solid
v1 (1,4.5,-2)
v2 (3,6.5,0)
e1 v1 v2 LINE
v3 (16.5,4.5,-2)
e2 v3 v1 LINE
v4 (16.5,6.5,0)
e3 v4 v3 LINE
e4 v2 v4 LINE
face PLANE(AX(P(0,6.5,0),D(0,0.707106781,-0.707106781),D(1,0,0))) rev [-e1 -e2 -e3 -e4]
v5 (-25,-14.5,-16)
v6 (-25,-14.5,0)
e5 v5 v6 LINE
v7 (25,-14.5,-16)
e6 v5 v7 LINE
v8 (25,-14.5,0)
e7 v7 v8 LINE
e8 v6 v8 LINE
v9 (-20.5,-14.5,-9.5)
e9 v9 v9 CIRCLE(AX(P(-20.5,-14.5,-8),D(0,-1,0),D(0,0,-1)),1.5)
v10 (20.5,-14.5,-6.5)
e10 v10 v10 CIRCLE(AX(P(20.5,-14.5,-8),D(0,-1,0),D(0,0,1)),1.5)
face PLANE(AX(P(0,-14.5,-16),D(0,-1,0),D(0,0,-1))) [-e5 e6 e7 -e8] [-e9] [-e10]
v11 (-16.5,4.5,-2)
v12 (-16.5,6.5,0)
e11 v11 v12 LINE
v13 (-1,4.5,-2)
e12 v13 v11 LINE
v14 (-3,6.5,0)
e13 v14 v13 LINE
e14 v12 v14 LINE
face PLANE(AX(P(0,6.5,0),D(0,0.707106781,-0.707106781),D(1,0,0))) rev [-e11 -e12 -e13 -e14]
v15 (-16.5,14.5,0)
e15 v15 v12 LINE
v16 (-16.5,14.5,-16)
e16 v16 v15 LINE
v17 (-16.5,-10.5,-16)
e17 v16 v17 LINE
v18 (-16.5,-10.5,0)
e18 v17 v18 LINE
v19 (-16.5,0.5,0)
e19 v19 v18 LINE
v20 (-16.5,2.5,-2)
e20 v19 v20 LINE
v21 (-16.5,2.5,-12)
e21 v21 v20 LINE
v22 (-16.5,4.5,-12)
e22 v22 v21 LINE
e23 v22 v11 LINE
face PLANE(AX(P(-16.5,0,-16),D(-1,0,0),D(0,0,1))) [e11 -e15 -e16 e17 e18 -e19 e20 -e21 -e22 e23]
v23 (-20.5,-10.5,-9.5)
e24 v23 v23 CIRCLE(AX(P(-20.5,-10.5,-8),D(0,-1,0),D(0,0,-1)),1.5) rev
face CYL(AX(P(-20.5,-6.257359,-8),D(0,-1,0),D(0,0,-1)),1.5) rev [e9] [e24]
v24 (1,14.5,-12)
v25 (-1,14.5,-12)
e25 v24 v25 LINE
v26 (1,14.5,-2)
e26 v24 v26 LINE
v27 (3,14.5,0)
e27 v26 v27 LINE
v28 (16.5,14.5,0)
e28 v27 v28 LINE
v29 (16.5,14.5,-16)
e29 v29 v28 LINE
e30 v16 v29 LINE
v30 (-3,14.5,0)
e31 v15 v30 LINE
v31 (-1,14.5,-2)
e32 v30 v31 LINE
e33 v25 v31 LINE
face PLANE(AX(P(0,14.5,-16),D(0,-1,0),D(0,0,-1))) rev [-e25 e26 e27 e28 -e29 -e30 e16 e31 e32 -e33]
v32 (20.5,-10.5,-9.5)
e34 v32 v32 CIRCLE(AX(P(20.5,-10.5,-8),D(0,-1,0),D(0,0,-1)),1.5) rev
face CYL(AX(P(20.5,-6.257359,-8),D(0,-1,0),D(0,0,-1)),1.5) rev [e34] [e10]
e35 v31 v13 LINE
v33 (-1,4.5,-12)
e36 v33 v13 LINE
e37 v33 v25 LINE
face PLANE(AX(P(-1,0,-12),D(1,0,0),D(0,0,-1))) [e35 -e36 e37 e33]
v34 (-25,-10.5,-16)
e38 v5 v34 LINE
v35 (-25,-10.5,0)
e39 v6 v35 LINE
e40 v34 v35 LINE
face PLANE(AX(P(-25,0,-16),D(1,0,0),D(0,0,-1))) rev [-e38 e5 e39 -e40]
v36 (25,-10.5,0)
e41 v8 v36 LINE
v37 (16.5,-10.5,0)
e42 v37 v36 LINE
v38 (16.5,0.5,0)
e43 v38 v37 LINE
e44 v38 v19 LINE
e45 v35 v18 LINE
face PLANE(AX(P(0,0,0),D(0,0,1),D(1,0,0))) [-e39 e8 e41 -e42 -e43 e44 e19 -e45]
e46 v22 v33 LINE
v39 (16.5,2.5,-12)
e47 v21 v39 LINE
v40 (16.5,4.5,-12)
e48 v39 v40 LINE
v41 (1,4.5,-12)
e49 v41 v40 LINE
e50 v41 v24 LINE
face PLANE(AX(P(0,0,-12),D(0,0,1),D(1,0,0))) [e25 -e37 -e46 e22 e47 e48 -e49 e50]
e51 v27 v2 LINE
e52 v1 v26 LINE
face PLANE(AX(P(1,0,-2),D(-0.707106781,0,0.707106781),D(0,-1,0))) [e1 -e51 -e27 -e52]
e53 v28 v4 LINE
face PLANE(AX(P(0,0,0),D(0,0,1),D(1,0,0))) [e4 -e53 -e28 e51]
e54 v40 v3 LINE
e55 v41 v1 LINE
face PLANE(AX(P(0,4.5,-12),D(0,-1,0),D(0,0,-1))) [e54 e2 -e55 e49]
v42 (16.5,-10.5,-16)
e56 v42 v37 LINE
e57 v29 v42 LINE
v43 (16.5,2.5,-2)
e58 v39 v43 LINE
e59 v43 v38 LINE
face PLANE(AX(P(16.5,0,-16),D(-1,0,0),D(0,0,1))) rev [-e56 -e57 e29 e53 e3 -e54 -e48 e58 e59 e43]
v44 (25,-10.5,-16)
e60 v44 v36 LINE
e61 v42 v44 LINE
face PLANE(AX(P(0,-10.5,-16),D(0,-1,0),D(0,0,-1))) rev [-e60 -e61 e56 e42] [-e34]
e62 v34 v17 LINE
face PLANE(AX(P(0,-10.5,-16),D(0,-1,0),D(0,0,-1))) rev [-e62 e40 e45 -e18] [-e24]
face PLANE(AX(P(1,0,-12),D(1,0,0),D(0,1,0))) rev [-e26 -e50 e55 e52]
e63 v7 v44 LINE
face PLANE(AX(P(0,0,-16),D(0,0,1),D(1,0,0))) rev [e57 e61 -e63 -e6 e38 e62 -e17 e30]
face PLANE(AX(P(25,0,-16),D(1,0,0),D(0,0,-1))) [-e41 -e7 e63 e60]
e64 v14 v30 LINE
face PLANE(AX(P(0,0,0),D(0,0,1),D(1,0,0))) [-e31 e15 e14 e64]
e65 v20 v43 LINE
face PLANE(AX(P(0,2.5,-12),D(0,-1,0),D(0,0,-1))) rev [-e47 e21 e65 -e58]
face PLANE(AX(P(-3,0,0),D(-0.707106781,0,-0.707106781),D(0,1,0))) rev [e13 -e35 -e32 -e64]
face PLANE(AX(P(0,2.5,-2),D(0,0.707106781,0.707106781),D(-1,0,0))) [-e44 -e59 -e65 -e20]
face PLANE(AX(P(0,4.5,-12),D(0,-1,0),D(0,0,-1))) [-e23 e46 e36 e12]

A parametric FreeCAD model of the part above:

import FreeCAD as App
import Part
import Sketcher
Q = App.Units.Quantity


def edges_at(feature, points):
    """Names of the edges that pass closest to the given points."""
    edges = feature.Shape.Edges
    near = lambda p: min(range(len(edges)), key=lambda i: edges[i].distToShape(Part.Vertex(*p))[0])
    return sorted({f"Edge{near(p) + 1}" for p in points})

doc = App.newDocument("Part")
body = doc.addObject("PartDesign::Body", "Body")

# Sketch on XY plane
sketch1 = body.newObject("Sketcher::SketchObject", "Sketch")
sketch1.AttachmentSupport = (doc.getObject("XY_Plane"), [""])
sketch1.MapMode = "FlatFace"
sketch1.addGeometry([
    Part.LineSegment(App.Vector(25, -10.5, 0), App.Vector(16.5, -10.5, 0)),  # 0
    Part.LineSegment(App.Vector(16.5, -10.5, 0), App.Vector(16.5, 14.5, 0)),  # 1
    Part.LineSegment(App.Vector(16.5, 14.5, 0), App.Vector(-16.5, 14.5, 0)),  # 2
    Part.LineSegment(App.Vector(-16.5, 14.5, 0), App.Vector(-16.5, -10.5, 0)),  # 3
    Part.LineSegment(App.Vector(-16.5, -10.5, 0), App.Vector(-25, -10.5, 0)),  # 4
    Part.LineSegment(App.Vector(-25, -10.5, 0), App.Vector(-25, -14.5, 0)),  # 5
    Part.LineSegment(App.Vector(-25, -14.5, 0), App.Vector(25, -14.5, 0)),  # 6
    Part.LineSegment(App.Vector(25, -14.5, 0), App.Vector(25, -10.5, 0)),  # 7
], False)
sketch1.addConstraint([
    Sketcher.Constraint("Coincident", 0, 2, 1, 1),
    Sketcher.Constraint("Coincident", 1, 2, 2, 1),
    Sketcher.Constraint("Coincident", 2, 2, 3, 1),
    Sketcher.Constraint("Coincident", 3, 2, 4, 1),
    Sketcher.Constraint("Coincident", 4, 2, 5, 1),
    Sketcher.Constraint("Coincident", 5, 2, 6, 1),
    Sketcher.Constraint("Coincident", 6, 2, 7, 1),
    Sketcher.Constraint("Coincident", 7, 2, 0, 1),
    Sketcher.Constraint("Horizontal", 0),
    Sketcher.Constraint("Vertical", 1),
    Sketcher.Constraint("Horizontal", 2),
    Sketcher.Constraint("Vertical", 3),
    Sketcher.Constraint("Horizontal", 4),
    Sketcher.Constraint("Vertical", 5),
    Sketcher.Constraint("Horizontal", 6),
    Sketcher.Constraint("Vertical", 7),
    Sketcher.Constraint("Symmetric", 0, 2, 3, 2, -2),
    Sketcher.Constraint("Equal", 0, 4),
    Sketcher.Constraint("DistanceX", 2, 2, 2, 1, Q("33 mm")),
    Sketcher.Constraint("DistanceX", 6, 1, 6, 2, Q("50 mm")),
    Sketcher.Constraint("DistanceY", 1, 1, 1, 2, Q("25 mm")),
    Sketcher.Constraint("DistanceY", 5, 2, 5, 1, Q("4 mm")),
    Sketcher.Constraint("DistanceY", 0, 2, -1, 1, Q("10.5 mm")),
])
pad1 = body.newObject("PartDesign::Pad", "Pad")
pad1.Profile = sketch1
pad1.Length = 16
pad1.Reversed = True

# Sketch on XY plane
sketch2 = body.newObject("Sketcher::SketchObject", "Sketch001")
sketch2.AttachmentSupport = (doc.getObject("XY_Plane"), [""])
sketch2.MapMode = "FlatFace"
sketch2.addGeometry([
    Part.LineSegment(App.Vector(1, 14.5, 0), App.Vector(-1, 14.5, 0)),  # 0
    Part.LineSegment(App.Vector(-1, 14.5, 0), App.Vector(-1, 4.5, 0)),  # 1
    Part.LineSegment(App.Vector(-1, 4.5, 0), App.Vector(-16.5, 4.5, 0)),  # 2
    Part.LineSegment(App.Vector(-16.5, 4.5, 0), App.Vector(-16.5, 2.5, 0)),  # 3
    Part.LineSegment(App.Vector(-16.5, 2.5, 0), App.Vector(16.5, 2.5, 0)),  # 4
    Part.LineSegment(App.Vector(16.5, 2.5, 0), App.Vector(16.5, 4.5, 0)),  # 5
    Part.LineSegment(App.Vector(16.5, 4.5, 0), App.Vector(1, 4.5, 0)),  # 6
    Part.LineSegment(App.Vector(1, 4.5, 0), App.Vector(1, 14.5, 0)),  # 7
], False)
sketch2.addConstraint([
    Sketcher.Constraint("Coincident", 0, 2, 1, 1),
    Sketcher.Constraint("Coincident", 1, 2, 2, 1),
    Sketcher.Constraint("Coincident", 2, 2, 3, 1),
    Sketcher.Constraint("Coincident", 3, 2, 4, 1),
    Sketcher.Constraint("Coincident", 4, 2, 5, 1),
    Sketcher.Constraint("Coincident", 5, 2, 6, 1),
    Sketcher.Constraint("Coincident", 6, 2, 7, 1),
    Sketcher.Constraint("Coincident", 7, 2, 0, 1),
    Sketcher.Constraint("Horizontal", 0),
    Sketcher.Constraint("Vertical", 1),
    Sketcher.Constraint("Horizontal", 2),
    Sketcher.Constraint("Vertical", 3),
    Sketcher.Constraint("Horizontal", 4),
    Sketcher.Constraint("Vertical", 5),
    Sketcher.Constraint("Horizontal", 6),
    Sketcher.Constraint("Vertical", 7),
    Sketcher.Constraint("Symmetric", 2, 2, 5, 2, -2),
    Sketcher.Constraint("Equal", 2, 6),
    Sketcher.Constraint("Equal", 0, 3),
    Sketcher.Constraint("DistanceX", 0, 2, 0, 1, Q("2 mm")),
    Sketcher.Constraint("DistanceX", 4, 1, 4, 2, Q("33 mm")),
    Sketcher.Constraint("DistanceY", 1, 2, 1, 1, Q("10 mm")),
    Sketcher.Constraint("DistanceY", -1, 1, 0, 2, Q("14.5 mm")),
])
pocket1 = body.newObject("PartDesign::Pocket", "Pocket")
pocket1.Profile = sketch2
pocket1.Length = 12
doc.recompute()

chamfer = body.newObject("PartDesign::Chamfer", "Chamfer")
chamfer.Base = (pocket1, edges_at(pocket1, [
    (-1, 9.5, 0),
    (8.75, 4.5, 0),
    (-8.75, 4.5, 0),
    (0, 2.5, 0),
    (1, 9.5, 0),
]))
chamfer.Size = 2

# Sketch on XZ plane
sketch3 = body.newObject("Sketcher::SketchObject", "Sketch002")
sketch3.AttachmentSupport = (doc.getObject("XZ_Plane"), [""])
sketch3.MapMode = "FlatFace"
sketch3.AttachmentOffset = App.Placement(App.Vector(0, 0, 14.5), App.Rotation())
sketch3.addGeometry([
    Part.Circle(App.Vector(-20.5, -8, 0), App.Vector(0, 0, 1), 1.5),
    Part.Circle(App.Vector(20.5, -8, 0), App.Vector(0, 0, 1), 1.5),
], False)
sketch3.addConstraint([
    Sketcher.Constraint("Equal", 0, 1),
    Sketcher.Constraint("Symmetric", 0, 3, 1, 3, -2),
    Sketcher.Constraint("Diameter", 0, Q("3 mm")),
    Sketcher.Constraint("DistanceY", 0, 3, -1, 1, Q("8 mm")),
    Sketcher.Constraint("DistanceX", 0, 3, 1, 3, Q("41 mm")),
])
pocket2 = body.newObject("PartDesign::Pocket", "Pocket001")
pocket2.Profile = sketch3
pocket2.Length = 4

doc.recompute()
